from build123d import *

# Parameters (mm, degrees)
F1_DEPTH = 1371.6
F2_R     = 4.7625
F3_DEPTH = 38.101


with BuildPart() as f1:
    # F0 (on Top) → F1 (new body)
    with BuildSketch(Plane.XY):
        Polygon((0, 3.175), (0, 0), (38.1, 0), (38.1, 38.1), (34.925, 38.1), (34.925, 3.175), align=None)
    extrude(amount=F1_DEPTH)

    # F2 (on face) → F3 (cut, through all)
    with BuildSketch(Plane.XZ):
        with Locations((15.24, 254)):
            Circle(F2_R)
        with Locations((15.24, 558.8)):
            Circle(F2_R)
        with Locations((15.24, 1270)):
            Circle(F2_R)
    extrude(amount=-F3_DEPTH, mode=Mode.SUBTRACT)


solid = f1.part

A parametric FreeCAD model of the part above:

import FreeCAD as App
import Part
import Sketcher
Q = App.Units.Quantity


def add_polygon(sketch, points):
    """Adds a closed chain of lines whose ends are joined by coincident constraints."""
    first, n = sketch.GeometryCount, len(points)
    for a, b in zip(points, points[1:] + points[:1]):
        sketch.addGeometry(Part.LineSegment(App.Vector(*a, 0), App.Vector(*b, 0)), False)
    for i in range(n):
        sketch.addConstraint(Sketcher.Constraint("Coincident", first + i, 2, first + (i + 1) % n, 1))

doc = App.newDocument("Part")
params = doc.addObject("Spreadsheet::Sheet", "Params")
for row, (alias, value) in enumerate([
    ("sketch1_width", "1.5 in"),
    ("sketch1_width2", "0.125 in"),
    ("pad1_length", "54 in"),
    ("sketch2_diameter", "0.375 in"),
], start=1):
    params.set(f"A{row}", alias)
    params.set(f"B{row}", "=" + value)
    params.setAlias(f"B{row}", alias)

body = doc.addObject("PartDesign::Body", "Body")

sketch1 = body.newObject("Sketcher::SketchObject", "Sketch")
sketch1.AttachmentSupport = (doc.getObject("XY_Plane"), [""])
sketch1.MapMode = "FlatFace"
add_polygon(sketch1, [(0, 3.175), (0, 0), (38.1, 0), (38.1, 38.1), (34.925, 38.1), (34.925, 3.175)])
sketch1.addConstraint(Sketcher.Constraint("Vertical", 0))
sketch1.addConstraint(Sketcher.Constraint("Horizontal", 1))
sketch1.addConstraint(Sketcher.Constraint("Vertical", 2))
sketch1.addConstraint(Sketcher.Constraint("Horizontal", 3))
sketch1.addConstraint(Sketcher.Constraint("Vertical", 4))
sketch1.addConstraint(Sketcher.Constraint("Horizontal", 5))
sketch1.addConstraint(Sketcher.Constraint("Coincident", 0, 2, -1, 1))
sketch1.addConstraint(Sketcher.Constraint("Equal", 3, 0))
sketch1.addConstraint(Sketcher.Constraint("Equal", 1, 2))
sketch1.addConstraint(Sketcher.Constraint("DistanceX", 1, 1, 1, 2, Q("1.5 in")))
sketch1.addConstraint(Sketcher.Constraint("DistanceX", 3, 2, 3, 1, Q("0.125 in")))
sketch1.setExpression("Constraints[15]", "Params.sketch1_width")
sketch1.setExpression("Constraints[16]", "Params.sketch1_width2")
pad1 = body.newObject("PartDesign::Pad", "Pad")
pad1.Profile = sketch1
pad1.setExpression("Length", "Params.pad1_length")

sketch2 = body.newObject("Sketcher::SketchObject", "Sketch001")
sketch2.AttachmentSupport = (doc.getObject("XZ_Plane"), [""])
sketch2.MapMode = "FlatFace"
sketch2.addGeometry(Part.Circle(App.Vector(15.24, 254, 0), App.Vector(0, 0, 1), 4.7625), False)
sketch2.addGeometry(Part.Circle(App.Vector(15.24, 558.8, 0), App.Vector(0, 0, 1), 4.7625), False)
sketch2.addGeometry(Part.Circle(App.Vector(15.24, 1270, 0), App.Vector(0, 0, 1), 4.7625), False)
sketch2.addConstraint(Sketcher.Constraint("Equal", 0, 1))
sketch2.addConstraint(Sketcher.Constraint("Equal", 1, 2))
sketch2.addConstraint(Sketcher.Constraint("Vertical", 0, 3, 1, 3))
sketch2.addConstraint(Sketcher.Constraint("Vertical", 1, 3, 2, 3))
sketch2.addConstraint(Sketcher.Constraint("Diameter", 0, Q("0.375 in")))
sketch2.addConstraint(Sketcher.Constraint("DistanceY", -1, 1, 0, 3, Q("10 in")))
sketch2.addConstraint(Sketcher.Constraint("DistanceY", -1, 1, 1, 3, Q("22 in")))
sketch2.addConstraint(Sketcher.Constraint("DistanceY", -1, 1, 2, 3, Q("50 in")))
sketch2.addConstraint(Sketcher.Constraint("DistanceX", -1, 1, 0, 3, Q("0.6 in")))
sketch2.setExpression("Constraints[4]", "Params.sketch2_diameter")
pocket1 = body.newObject("PartDesign::Pocket", "Pocket")
pocket1.Profile = sketch2
pocket1.Type = "ThroughAll"

doc.recompute()
